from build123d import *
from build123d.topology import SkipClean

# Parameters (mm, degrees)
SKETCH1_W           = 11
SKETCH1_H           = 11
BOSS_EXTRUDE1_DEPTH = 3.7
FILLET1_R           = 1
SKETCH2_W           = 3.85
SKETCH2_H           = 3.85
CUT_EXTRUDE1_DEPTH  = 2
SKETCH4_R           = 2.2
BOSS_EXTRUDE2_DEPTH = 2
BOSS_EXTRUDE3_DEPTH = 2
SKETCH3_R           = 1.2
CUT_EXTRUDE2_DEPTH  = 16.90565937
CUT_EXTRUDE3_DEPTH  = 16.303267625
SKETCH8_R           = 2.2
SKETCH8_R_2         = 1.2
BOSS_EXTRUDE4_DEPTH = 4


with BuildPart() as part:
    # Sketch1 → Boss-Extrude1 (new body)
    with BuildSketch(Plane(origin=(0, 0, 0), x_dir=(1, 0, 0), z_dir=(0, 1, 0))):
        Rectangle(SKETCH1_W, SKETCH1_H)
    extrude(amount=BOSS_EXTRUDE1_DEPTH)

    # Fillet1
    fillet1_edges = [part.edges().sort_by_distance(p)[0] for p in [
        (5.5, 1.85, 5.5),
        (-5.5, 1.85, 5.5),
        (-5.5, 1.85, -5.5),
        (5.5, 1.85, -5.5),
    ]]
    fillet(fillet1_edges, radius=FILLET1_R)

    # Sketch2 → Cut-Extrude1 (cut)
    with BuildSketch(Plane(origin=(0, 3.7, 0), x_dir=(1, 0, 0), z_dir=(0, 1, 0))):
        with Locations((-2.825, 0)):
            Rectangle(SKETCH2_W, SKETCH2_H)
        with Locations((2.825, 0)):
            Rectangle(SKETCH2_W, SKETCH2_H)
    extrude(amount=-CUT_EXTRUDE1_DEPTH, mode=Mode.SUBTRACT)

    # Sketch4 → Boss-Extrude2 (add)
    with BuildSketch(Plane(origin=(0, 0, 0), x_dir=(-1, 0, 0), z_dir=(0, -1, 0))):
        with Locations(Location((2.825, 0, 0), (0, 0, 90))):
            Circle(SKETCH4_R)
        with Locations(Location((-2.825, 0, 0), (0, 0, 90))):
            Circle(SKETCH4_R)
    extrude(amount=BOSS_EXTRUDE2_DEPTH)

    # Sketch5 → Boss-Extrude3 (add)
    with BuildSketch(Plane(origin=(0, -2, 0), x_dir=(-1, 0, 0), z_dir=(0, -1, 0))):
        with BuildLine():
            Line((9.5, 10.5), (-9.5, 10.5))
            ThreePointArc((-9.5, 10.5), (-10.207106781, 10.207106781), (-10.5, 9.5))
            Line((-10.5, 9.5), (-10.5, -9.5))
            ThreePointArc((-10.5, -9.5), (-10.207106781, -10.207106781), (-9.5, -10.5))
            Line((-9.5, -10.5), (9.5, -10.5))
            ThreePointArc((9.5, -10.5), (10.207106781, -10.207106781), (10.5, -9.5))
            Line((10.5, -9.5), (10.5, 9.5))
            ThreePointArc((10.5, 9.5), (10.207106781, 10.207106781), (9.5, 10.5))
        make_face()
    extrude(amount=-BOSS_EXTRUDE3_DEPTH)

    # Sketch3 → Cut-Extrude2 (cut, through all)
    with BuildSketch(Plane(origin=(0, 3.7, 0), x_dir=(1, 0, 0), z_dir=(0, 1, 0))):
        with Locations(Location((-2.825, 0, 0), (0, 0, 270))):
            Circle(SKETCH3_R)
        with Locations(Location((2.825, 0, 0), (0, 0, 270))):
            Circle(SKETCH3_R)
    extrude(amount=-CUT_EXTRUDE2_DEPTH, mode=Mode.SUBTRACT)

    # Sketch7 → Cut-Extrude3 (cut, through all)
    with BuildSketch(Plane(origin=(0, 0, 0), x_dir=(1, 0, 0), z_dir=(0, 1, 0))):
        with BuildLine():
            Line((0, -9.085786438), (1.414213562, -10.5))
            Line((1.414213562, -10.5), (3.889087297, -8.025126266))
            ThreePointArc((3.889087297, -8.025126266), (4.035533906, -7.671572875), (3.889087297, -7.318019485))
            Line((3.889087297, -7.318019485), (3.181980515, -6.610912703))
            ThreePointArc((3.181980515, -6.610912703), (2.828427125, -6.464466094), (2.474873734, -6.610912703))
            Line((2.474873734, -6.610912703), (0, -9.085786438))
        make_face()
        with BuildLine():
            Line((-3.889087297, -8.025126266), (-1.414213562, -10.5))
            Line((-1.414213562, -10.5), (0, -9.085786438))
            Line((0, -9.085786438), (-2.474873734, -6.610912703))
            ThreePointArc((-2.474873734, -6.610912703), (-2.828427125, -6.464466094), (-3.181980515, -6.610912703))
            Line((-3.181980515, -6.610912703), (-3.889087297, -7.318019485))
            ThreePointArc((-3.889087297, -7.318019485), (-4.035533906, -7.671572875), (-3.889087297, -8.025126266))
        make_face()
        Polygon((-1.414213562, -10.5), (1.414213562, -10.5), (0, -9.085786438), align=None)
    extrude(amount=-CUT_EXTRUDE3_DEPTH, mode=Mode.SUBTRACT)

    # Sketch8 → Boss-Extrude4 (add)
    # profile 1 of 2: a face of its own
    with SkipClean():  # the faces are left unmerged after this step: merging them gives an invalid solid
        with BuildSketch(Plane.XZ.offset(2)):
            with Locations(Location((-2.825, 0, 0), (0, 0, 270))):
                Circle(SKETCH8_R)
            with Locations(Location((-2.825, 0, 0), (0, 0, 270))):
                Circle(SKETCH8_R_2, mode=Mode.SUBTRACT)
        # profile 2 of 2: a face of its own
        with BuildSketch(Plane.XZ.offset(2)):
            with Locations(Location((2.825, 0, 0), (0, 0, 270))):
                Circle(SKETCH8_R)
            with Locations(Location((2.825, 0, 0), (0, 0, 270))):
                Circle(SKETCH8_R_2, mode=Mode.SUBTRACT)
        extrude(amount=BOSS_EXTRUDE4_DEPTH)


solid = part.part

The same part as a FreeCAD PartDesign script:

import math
import FreeCAD as App
import Part
import Sketcher

V = App.Vector
Q = App.Units.Quantity


def edges_at(feature, points):
    """Names of the edges that pass closest to the given points."""
    edges = feature.Shape.Edges
    near = lambda p: min(range(len(edges)), key=lambda i: edges[i].distToShape(Part.Vertex(*p))[0])
    return sorted({f"Edge{near(p) + 1}" for p in points})

doc = App.newDocument("Part")
body = doc.addObject("PartDesign::Body", "Body")

# Sketch on XZ plane
sketch1 = body.newObject("Sketcher::SketchObject", "Sketch")
sketch1.AttachmentSupport = (doc.getObject("XZ_Plane"), [""])
sketch1.MapMode = "FlatFace"
sketch1.addGeometry(Part.LineSegment(V(-5.5, -5.5, 0), V(-5.5, 5.5, 0)), False)
sketch1.addGeometry(Part.LineSegment(V(-5.5, 5.5, 0), V(5.5, 5.5, 0)), False)
sketch1.addGeometry(Part.LineSegment(V(5.5, 5.5, 0), V(5.5, -5.5, 0)), False)
sketch1.addGeometry(Part.LineSegment(V(5.5, -5.5, 0), V(-5.5, -5.5, 0)), False)
sketch1.addConstraint(Sketcher.Constraint("Coincident", 0, 2, 1, 1))
sketch1.addConstraint(Sketcher.Constraint("Coincident", 1, 2, 2, 1))
sketch1.addConstraint(Sketcher.Constraint("Coincident", 2, 2, 3, 1))
sketch1.addConstraint(Sketcher.Constraint("Coincident", 3, 2, 0, 1))
sketch1.addConstraint(Sketcher.Constraint("Vertical", 0))
sketch1.addConstraint(Sketcher.Constraint("Horizontal", 1))
sketch1.addConstraint(Sketcher.Constraint("Vertical", 2))
sketch1.addConstraint(Sketcher.Constraint("Horizontal", 3))
sketch1.addConstraint(Sketcher.Constraint("Symmetric", 0, 2, 2, 2, -1, 1))
sketch1.addConstraint(Sketcher.Constraint("Equal", 3, 0))
sketch1.addConstraint(Sketcher.Constraint("DistanceX", 1, 1, 1, 2, Q("11 mm")))
pad1 = body.newObject("PartDesign::Pad", "Pad")
pad1.Profile = sketch1
pad1.Length = 3.7
pad1.Reversed = True
doc.recompute()

fillet = body.newObject("PartDesign::Fillet", "Fillet")
fillet.Base = (pad1, edges_at(pad1, [
    (5.5, 1.85, 5.5),
    (-5.5, 1.85, 5.5),
    (-5.5, 1.85, -5.5),
    (5.5, 1.85, -5.5),
]))
fillet.Radius = 1

# Sketch on XZ plane
sketch2 = body.newObject("Sketcher::SketchObject", "Sketch001")
sketch2.AttachmentSupport = (doc.getObject("XZ_Plane"), [""])
sketch2.MapMode = "FlatFace"
sketch2.AttachmentOffset = App.Placement(V(0, 0, -3.7), App.Rotation())
sketch2.addGeometry(Part.LineSegment(V(-4.75, -1.925, 0), V(-4.75, 1.925, 0)), False)
sketch2.addGeometry(Part.LineSegment(V(-4.75, 1.925, 0), V(-0.9, 1.925, 0)), False)
sketch2.addGeometry(Part.LineSegment(V(-0.9, 1.925, 0), V(-0.9, -1.925, 0)), False)
sketch2.addGeometry(Part.LineSegment(V(-0.9, -1.925, 0), V(-4.75, -1.925, 0)), False)
sketch2.addGeometry(Part.LineSegment(V(0.9, -1.925, 0), V(0.9, 1.925, 0)), False)
sketch2.addGeometry(Part.LineSegment(V(0.9, 1.925, 0), V(4.75, 1.925, 0)), False)
sketch2.addGeometry(Part.LineSegment(V(4.75, 1.925, 0), V(4.75, -1.925, 0)), False)
sketch2.addGeometry(Part.LineSegment(V(4.75, -1.925, 0), V(0.9, -1.925, 0)), False)
sketch2.addConstraint(Sketcher.Constraint("Coincident", 0, 2, 1, 1))
sketch2.addConstraint(Sketcher.Constraint("Coincident", 1, 2, 2, 1))
sketch2.addConstraint(Sketcher.Constraint("Coincident", 2, 2, 3, 1))
sketch2.addConstraint(Sketcher.Constraint("Coincident", 3, 2, 0, 1))
sketch2.addConstraint(Sketcher.Constraint("Coincident", 4, 2, 5, 1))
sketch2.addConstraint(Sketcher.Constraint("Coincident", 5, 2, 6, 1))
sketch2.addConstraint(Sketcher.Constraint("Coincident", 6, 2, 7, 1))
sketch2.addConstraint(Sketcher.Constraint("Coincident", 7, 2, 4, 1))
sketch2.addConstraint(Sketcher.Constraint("Vertical", 0))
sketch2.addConstraint(Sketcher.Constraint("Horizontal", 1))
sketch2.addConstraint(Sketcher.Constraint("Vertical", 2))
sketch2.addConstraint(Sketcher.Constraint("Horizontal", 3))
sketch2.addConstraint(Sketcher.Constraint("Vertical", 4))
sketch2.addConstraint(Sketcher.Constraint("Horizontal", 5))
sketch2.addConstraint(Sketcher.Constraint("Vertical", 6))
sketch2.addConstraint(Sketcher.Constraint("Horizontal", 7))
sketch2.addConstraint(Sketcher.Constraint("Symmetric", 2, 2, 4, 2, -1, 1))
sketch2.addConstraint(Sketcher.Constraint("Symmetric", 0, 2, 6, 2, -1, 1))
sketch2.addConstraint(Sketcher.Constraint("Horizontal", 1, 2, 4, 2))
sketch2.addConstraint(Sketcher.Constraint("Equal", 7, 0))
sketch2.addConstraint(Sketcher.Constraint("DistanceX", 1, 1, 1, 2, Q("3.85 mm")))
sketch2.addConstraint(Sketcher.Constraint("DistanceX", 1, 2, -1, 1, Q("0.9 mm")))
pocket1 = body.newObject("PartDesign::Pocket", "Pocket")
pocket1.Profile = sketch2
pocket1.Length = 2
pocket1.Reversed = True

# Sketch on XZ plane
sketch3 = body.newObject("Sketcher::SketchObject", "Sketch002")
sketch3.AttachmentSupport = (doc.getObject("XZ_Plane"), [""])
sketch3.MapMode = "FlatFace"
sketch3.addGeometry(Part.Circle(V(-2.825, 0, 0), V(0, 0, 1), 2.2), False)
sketch3.addGeometry(Part.Circle(V(2.825, 0, 0), V(0, 0, 1), 2.2), False)
sketch3.addConstraint(Sketcher.Constraint("Equal", 0, 1))
sketch3.addConstraint(Sketcher.Constraint("Symmetric", 0, 3, 1, 3, -1, 1))
sketch3.addConstraint(Sketcher.Constraint("PointOnObject", 0, 3, -1))
sketch3.addConstraint(Sketcher.Constraint("Diameter", 0, Q("4.4 mm")))
sketch3.addConstraint(Sketcher.Constraint("DistanceX", 0, 3, 1, 3, Q("5.65 mm")))
pad2 = body.newObject("PartDesign::Pad", "Pad001")
pad2.Profile = sketch3
pad2.Length = 2

# Sketch on XZ plane
sketch4 = body.newObject("Sketcher::SketchObject", "Sketch003")
sketch4.AttachmentSupport = (doc.getObject("XZ_Plane"), [""])
sketch4.MapMode = "FlatFace"
sketch4.AttachmentOffset = App.Placement(V(0, 0, 2), App.Rotation())
sketch4.addGeometry(Part.LineSegment(V(-9.5, -10.5, 0), V(9.5, -10.5, 0)), False)
sketch4.addGeometry(Part.ArcOfCircle(Part.Circle(V(9.5, -9.5, 0), V(0, 0, 1), 1), math.radians(-90), math.radians(0)), False)
sketch4.addGeometry(Part.LineSegment(V(10.5, -9.5, 0), V(10.5, 9.5, 0)), False)
sketch4.addGeometry(Part.ArcOfCircle(Part.Circle(V(9.5, 9.5, 0), V(0, 0, 1), 1), math.radians(0), math.radians(90)), False)
sketch4.addGeometry(Part.LineSegment(V(9.5, 10.5, 0), V(-9.5, 10.5, 0)), False)
sketch4.addGeometry(Part.ArcOfCircle(Part.Circle(V(-9.5, 9.5, 0), V(0, 0, 1), 1), math.radians(90), math.radians(180)), False)
sketch4.addGeometry(Part.LineSegment(V(-10.5, 9.5, 0), V(-10.5, -9.5, 0)), False)
sketch4.addGeometry(Part.ArcOfCircle(Part.Circle(V(-9.5, -9.5, 0), V(0, 0, 1), 1), math.radians(-180), math.radians(-90)), False)
sketch4.addConstraint(Sketcher.Constraint("Tangent", 0, 2, 1, 1))
sketch4.addConstraint(Sketcher.Constraint("Tangent", 1, 2, 2, 1))
sketch4.addConstraint(Sketcher.Constraint("Tangent", 2, 2, 3, 1))
sketch4.addConstraint(Sketcher.Constraint("Tangent", 3, 2, 4, 1))
sketch4.addConstraint(Sketcher.Constraint("Tangent", 4, 2, 5, 1))
sketch4.addConstraint(Sketcher.Constraint("Tangent", 5, 2, 6, 1))
sketch4.addConstraint(Sketcher.Constraint("Tangent", 6, 2, 7, 1))
sketch4.addConstraint(Sketcher.Constraint("Tangent", 7, 2, 0, 1))
sketch4.addConstraint(Sketcher.Constraint("Horizontal", 0))
sketch4.addConstraint(Sketcher.Constraint("Vertical", 2))
sketch4.addConstraint(Sketcher.Constraint("Horizontal", 4))
sketch4.addConstraint(Sketcher.Constraint("Vertical", 6))
sketch4.addConstraint(Sketcher.Constraint("Equal", 1, 3))
sketch4.addConstraint(Sketcher.Constraint("Equal", 3, 5))
sketch4.addConstraint(Sketcher.Constraint("Equal", 5, 7))
sketch4.addConstraint(Sketcher.Constraint("Symmetric", 1, 3, 5, 3, -1, 1))
sketch4.addConstraint(Sketcher.Constraint("Equal", 4, 2))
sketch4.addConstraint(Sketcher.Constraint("Radius", 1, Q("1 mm")))
sketch4.addConstraint(Sketcher.Constraint("DistanceX", 0, 1, 0, 2, Q("19 mm")))
pad3 = body.newObject("PartDesign::Pad", "Pad002")
pad3.Profile = sketch4
pad3.Length = 2
pad3.Reversed = True

# Sketch on XZ plane
sketch5 = body.newObject("Sketcher::SketchObject", "Sketch004")
sketch5.AttachmentSupport = (doc.getObject("XZ_Plane"), [""])
sketch5.MapMode = "FlatFace"
sketch5.AttachmentOffset = App.Placement(V(0, 0, -3.7), App.Rotation())
sketch5.addGeometry(Part.Circle(V(-2.825, 0, 0), V(0, 0, 1), 1.2), False)
sketch5.addGeometry(Part.Circle(V(2.825, 0, 0), V(0, 0, 1), 1.2), False)
sketch5.addConstraint(Sketcher.Constraint("Equal", 0, 1))
sketch5.addConstraint(Sketcher.Constraint("Symmetric", 0, 3, 1, 3, -1, 1))
sketch5.addConstraint(Sketcher.Constraint("PointOnObject", 0, 3, -1))
sketch5.addConstraint(Sketcher.Constraint("Diameter", 0, Q("2.4 mm")))
sketch5.addConstraint(Sketcher.Constraint("DistanceX", 0, 3, 1, 3, Q("5.65 mm")))
pocket2 = body.newObject("PartDesign::Pocket", "Pocket001")
pocket2.Profile = sketch5
pocket2.Type = "ThroughAll"
pocket2.Reversed = True

# Sketch on XZ plane
sketch6 = body.newObject("Sketcher::SketchObject", "Sketch005")
sketch6.AttachmentSupport = (doc.getObject("XZ_Plane"), [""])
sketch6.MapMode = "FlatFace"
sketch6.addGeometry(Part.LineSegment(V(1.414214, 10.5, 0), V(3.889087, 8.025126, 0)), False)
sketch6.addGeometry(Part.ArcOfCircle(Part.Circle(V(3.535534, 7.671573, 0), V(0, 0, 1), 0.5), math.radians(-45), math.radians(45)), False)
sketch6.addGeometry(Part.LineSegment(V(3.889087, 7.318019, 0), V(3.181981, 6.610913, 0)), False)
sketch6.addGeometry(Part.ArcOfCircle(Part.Circle(V(2.828427, 6.964466, 0), V(0, 0, 1), 0.5), math.radians(-135), math.radians(-45)), False)
sketch6.addGeometry(Part.LineSegment(V(2.474874, 6.610913, 0), V(0, 9.085786, 0)), False)
sketch6.addGeometry(Part.LineSegment(V(0, 9.085786, 0), V(-2.474874, 6.610913, 0)), False)
sketch6.addGeometry(Part.ArcOfCircle(Part.Circle(V(-2.828427, 6.964466, 0), V(0, 0, 1), 0.5), math.radians(-135), math.radians(-45)), False)
sketch6.addGeometry(Part.LineSegment(V(-3.181981, 6.610913, 0), V(-3.889087, 7.318019, 0)), False)
sketch6.addGeometry(Part.ArcOfCircle(Part.Circle(V(-3.535534, 7.671573, 0), V(0, 0, 1), 0.5), math.radians(135), math.radians(225)), False)
sketch6.addGeometry(Part.LineSegment(V(-3.889087, 8.025126, 0), V(-1.414214, 10.5, 0)), False)
sketch6.addGeometry(Part.LineSegment(V(-1.414214, 10.5, 0), V(1.414214, 10.5, 0)), False)
sketch6.addConstraint(Sketcher.Constraint("Tangent", 0, 2, 1, 2))
sketch6.addConstraint(Sketcher.Constraint("Tangent", 1, 1, 2, 1))
sketch6.addConstraint(Sketcher.Constraint("Tangent", 2, 2, 3, 2))
sketch6.addConstraint(Sketcher.Constraint("Tangent", 3, 1, 4, 1))
sketch6.addConstraint(Sketcher.Constraint("Coincident", 4, 2, 5, 1))
sketch6.addConstraint(Sketcher.Constraint("Tangent", 5, 2, 6, 2))
sketch6.addConstraint(Sketcher.Constraint("Tangent", 6, 1, 7, 1))
sketch6.addConstraint(Sketcher.Constraint("Tangent", 7, 2, 8, 2))
sketch6.addConstraint(Sketcher.Constraint("Tangent", 8, 1, 9, 1))
sketch6.addConstraint(Sketcher.Constraint("Coincident", 9, 2, 10, 1))
sketch6.addConstraint(Sketcher.Constraint("Coincident", 10, 2, 0, 1))
sketch6.addConstraint(Sketcher.Constraint("Horizontal", 10))
sketch6.addConstraint(Sketcher.Constraint("Equal", 1, 3))
sketch6.addConstraint(Sketcher.Constraint("Equal", 3, 6))
sketch6.addConstraint(Sketcher.Constraint("Equal", 6, 8))
sketch6.addConstraint(Sketcher.Constraint("Symmetric", 3, 3, 6, 3, -2))
sketch6.addConstraint(Sketcher.Constraint("Symmetric", 1, 3, 8, 3, -2))
sketch6.addConstraint(Sketcher.Constraint("PointOnObject", 4, 2, -2))
sketch6.addConstraint(Sketcher.Constraint("Perpendicular", 0, 2))
sketch6.addConstraint(Sketcher.Constraint("Perpendicular", 2, 4))
sketch6.addConstraint(Sketcher.Constraint("Perpendicular", 4, 5))
sketch6.addConstraint(Sketcher.Constraint("Perpendicular", 7, 9))
sketch6.addConstraint(Sketcher.Constraint("Equal", 0, 4))
sketch6.addConstraint(Sketcher.Constraint("Radius", 1, Q("0.5 mm")))
sketch6.addConstraint(Sketcher.Constraint("Distance", 2, Q("1 mm")))
sketch6.addConstraint(Sketcher.Constraint("Distance", 0, Q("3.5 mm")))
sketch6.addConstraint(Sketcher.Constraint("DistanceY", -1, 1, 9, 2, Q("10.5 mm")))
pocket3 = body.newObject("PartDesign::Pocket", "Pocket002")
pocket3.Profile = sketch6
pocket3.Type = "ThroughAll"
pocket3.Reversed = True

# Sketch on XZ plane
sketch7 = body.newObject("Sketcher::SketchObject", "Sketch006")
sketch7.AttachmentSupport = (doc.getObject("XZ_Plane"), [""])
sketch7.MapMode = "FlatFace"
sketch7.AttachmentOffset = App.Placement(V(0, 0, 2), App.Rotation())
sketch7.addGeometry(Part.Circle(V(-2.825, 0, 0), V(0, 0, 1), 2.2), False)
sketch7.addGeometry(Part.Circle(V(-2.825, 0, 0), V(0, 0, 1), 1.2), False)
sketch7.addGeometry(Part.Circle(V(2.825, 0, 0), V(0, 0, 1), 2.2), False)
sketch7.addGeometry(Part.Circle(V(2.825, 0, 0), V(0, 0, 1), 1.2), False)
sketch7.addConstraint(Sketcher.Constraint("Coincident", 1, 3, 0, 3))
sketch7.addConstraint(Sketcher.Constraint("Coincident", 3, 3, 2, 3))
sketch7.addConstraint(Sketcher.Constraint("Equal", 0, 2))
sketch7.addConstraint(Sketcher.Constraint("Equal", 1, 3))
sketch7.addConstraint(Sketcher.Constraint("Symmetric", 0, 3, 2, 3, -1, 1))
sketch7.addConstraint(Sketcher.Constraint("PointOnObject", 0, 3, -1))
sketch7.addConstraint(Sketcher.Constraint("Diameter", 0, Q("4.4 mm")))
sketch7.addConstraint(Sketcher.Constraint("Diameter", 1, Q("2.4 mm")))
sketch7.addConstraint(Sketcher.Constraint("DistanceX", 0, 3, 2, 3, Q("5.65 mm")))
pad4 = body.newObject("PartDesign::Pad", "Pad003")
pad4.Profile = sketch7
pad4.Length = 4

doc.recompute()
